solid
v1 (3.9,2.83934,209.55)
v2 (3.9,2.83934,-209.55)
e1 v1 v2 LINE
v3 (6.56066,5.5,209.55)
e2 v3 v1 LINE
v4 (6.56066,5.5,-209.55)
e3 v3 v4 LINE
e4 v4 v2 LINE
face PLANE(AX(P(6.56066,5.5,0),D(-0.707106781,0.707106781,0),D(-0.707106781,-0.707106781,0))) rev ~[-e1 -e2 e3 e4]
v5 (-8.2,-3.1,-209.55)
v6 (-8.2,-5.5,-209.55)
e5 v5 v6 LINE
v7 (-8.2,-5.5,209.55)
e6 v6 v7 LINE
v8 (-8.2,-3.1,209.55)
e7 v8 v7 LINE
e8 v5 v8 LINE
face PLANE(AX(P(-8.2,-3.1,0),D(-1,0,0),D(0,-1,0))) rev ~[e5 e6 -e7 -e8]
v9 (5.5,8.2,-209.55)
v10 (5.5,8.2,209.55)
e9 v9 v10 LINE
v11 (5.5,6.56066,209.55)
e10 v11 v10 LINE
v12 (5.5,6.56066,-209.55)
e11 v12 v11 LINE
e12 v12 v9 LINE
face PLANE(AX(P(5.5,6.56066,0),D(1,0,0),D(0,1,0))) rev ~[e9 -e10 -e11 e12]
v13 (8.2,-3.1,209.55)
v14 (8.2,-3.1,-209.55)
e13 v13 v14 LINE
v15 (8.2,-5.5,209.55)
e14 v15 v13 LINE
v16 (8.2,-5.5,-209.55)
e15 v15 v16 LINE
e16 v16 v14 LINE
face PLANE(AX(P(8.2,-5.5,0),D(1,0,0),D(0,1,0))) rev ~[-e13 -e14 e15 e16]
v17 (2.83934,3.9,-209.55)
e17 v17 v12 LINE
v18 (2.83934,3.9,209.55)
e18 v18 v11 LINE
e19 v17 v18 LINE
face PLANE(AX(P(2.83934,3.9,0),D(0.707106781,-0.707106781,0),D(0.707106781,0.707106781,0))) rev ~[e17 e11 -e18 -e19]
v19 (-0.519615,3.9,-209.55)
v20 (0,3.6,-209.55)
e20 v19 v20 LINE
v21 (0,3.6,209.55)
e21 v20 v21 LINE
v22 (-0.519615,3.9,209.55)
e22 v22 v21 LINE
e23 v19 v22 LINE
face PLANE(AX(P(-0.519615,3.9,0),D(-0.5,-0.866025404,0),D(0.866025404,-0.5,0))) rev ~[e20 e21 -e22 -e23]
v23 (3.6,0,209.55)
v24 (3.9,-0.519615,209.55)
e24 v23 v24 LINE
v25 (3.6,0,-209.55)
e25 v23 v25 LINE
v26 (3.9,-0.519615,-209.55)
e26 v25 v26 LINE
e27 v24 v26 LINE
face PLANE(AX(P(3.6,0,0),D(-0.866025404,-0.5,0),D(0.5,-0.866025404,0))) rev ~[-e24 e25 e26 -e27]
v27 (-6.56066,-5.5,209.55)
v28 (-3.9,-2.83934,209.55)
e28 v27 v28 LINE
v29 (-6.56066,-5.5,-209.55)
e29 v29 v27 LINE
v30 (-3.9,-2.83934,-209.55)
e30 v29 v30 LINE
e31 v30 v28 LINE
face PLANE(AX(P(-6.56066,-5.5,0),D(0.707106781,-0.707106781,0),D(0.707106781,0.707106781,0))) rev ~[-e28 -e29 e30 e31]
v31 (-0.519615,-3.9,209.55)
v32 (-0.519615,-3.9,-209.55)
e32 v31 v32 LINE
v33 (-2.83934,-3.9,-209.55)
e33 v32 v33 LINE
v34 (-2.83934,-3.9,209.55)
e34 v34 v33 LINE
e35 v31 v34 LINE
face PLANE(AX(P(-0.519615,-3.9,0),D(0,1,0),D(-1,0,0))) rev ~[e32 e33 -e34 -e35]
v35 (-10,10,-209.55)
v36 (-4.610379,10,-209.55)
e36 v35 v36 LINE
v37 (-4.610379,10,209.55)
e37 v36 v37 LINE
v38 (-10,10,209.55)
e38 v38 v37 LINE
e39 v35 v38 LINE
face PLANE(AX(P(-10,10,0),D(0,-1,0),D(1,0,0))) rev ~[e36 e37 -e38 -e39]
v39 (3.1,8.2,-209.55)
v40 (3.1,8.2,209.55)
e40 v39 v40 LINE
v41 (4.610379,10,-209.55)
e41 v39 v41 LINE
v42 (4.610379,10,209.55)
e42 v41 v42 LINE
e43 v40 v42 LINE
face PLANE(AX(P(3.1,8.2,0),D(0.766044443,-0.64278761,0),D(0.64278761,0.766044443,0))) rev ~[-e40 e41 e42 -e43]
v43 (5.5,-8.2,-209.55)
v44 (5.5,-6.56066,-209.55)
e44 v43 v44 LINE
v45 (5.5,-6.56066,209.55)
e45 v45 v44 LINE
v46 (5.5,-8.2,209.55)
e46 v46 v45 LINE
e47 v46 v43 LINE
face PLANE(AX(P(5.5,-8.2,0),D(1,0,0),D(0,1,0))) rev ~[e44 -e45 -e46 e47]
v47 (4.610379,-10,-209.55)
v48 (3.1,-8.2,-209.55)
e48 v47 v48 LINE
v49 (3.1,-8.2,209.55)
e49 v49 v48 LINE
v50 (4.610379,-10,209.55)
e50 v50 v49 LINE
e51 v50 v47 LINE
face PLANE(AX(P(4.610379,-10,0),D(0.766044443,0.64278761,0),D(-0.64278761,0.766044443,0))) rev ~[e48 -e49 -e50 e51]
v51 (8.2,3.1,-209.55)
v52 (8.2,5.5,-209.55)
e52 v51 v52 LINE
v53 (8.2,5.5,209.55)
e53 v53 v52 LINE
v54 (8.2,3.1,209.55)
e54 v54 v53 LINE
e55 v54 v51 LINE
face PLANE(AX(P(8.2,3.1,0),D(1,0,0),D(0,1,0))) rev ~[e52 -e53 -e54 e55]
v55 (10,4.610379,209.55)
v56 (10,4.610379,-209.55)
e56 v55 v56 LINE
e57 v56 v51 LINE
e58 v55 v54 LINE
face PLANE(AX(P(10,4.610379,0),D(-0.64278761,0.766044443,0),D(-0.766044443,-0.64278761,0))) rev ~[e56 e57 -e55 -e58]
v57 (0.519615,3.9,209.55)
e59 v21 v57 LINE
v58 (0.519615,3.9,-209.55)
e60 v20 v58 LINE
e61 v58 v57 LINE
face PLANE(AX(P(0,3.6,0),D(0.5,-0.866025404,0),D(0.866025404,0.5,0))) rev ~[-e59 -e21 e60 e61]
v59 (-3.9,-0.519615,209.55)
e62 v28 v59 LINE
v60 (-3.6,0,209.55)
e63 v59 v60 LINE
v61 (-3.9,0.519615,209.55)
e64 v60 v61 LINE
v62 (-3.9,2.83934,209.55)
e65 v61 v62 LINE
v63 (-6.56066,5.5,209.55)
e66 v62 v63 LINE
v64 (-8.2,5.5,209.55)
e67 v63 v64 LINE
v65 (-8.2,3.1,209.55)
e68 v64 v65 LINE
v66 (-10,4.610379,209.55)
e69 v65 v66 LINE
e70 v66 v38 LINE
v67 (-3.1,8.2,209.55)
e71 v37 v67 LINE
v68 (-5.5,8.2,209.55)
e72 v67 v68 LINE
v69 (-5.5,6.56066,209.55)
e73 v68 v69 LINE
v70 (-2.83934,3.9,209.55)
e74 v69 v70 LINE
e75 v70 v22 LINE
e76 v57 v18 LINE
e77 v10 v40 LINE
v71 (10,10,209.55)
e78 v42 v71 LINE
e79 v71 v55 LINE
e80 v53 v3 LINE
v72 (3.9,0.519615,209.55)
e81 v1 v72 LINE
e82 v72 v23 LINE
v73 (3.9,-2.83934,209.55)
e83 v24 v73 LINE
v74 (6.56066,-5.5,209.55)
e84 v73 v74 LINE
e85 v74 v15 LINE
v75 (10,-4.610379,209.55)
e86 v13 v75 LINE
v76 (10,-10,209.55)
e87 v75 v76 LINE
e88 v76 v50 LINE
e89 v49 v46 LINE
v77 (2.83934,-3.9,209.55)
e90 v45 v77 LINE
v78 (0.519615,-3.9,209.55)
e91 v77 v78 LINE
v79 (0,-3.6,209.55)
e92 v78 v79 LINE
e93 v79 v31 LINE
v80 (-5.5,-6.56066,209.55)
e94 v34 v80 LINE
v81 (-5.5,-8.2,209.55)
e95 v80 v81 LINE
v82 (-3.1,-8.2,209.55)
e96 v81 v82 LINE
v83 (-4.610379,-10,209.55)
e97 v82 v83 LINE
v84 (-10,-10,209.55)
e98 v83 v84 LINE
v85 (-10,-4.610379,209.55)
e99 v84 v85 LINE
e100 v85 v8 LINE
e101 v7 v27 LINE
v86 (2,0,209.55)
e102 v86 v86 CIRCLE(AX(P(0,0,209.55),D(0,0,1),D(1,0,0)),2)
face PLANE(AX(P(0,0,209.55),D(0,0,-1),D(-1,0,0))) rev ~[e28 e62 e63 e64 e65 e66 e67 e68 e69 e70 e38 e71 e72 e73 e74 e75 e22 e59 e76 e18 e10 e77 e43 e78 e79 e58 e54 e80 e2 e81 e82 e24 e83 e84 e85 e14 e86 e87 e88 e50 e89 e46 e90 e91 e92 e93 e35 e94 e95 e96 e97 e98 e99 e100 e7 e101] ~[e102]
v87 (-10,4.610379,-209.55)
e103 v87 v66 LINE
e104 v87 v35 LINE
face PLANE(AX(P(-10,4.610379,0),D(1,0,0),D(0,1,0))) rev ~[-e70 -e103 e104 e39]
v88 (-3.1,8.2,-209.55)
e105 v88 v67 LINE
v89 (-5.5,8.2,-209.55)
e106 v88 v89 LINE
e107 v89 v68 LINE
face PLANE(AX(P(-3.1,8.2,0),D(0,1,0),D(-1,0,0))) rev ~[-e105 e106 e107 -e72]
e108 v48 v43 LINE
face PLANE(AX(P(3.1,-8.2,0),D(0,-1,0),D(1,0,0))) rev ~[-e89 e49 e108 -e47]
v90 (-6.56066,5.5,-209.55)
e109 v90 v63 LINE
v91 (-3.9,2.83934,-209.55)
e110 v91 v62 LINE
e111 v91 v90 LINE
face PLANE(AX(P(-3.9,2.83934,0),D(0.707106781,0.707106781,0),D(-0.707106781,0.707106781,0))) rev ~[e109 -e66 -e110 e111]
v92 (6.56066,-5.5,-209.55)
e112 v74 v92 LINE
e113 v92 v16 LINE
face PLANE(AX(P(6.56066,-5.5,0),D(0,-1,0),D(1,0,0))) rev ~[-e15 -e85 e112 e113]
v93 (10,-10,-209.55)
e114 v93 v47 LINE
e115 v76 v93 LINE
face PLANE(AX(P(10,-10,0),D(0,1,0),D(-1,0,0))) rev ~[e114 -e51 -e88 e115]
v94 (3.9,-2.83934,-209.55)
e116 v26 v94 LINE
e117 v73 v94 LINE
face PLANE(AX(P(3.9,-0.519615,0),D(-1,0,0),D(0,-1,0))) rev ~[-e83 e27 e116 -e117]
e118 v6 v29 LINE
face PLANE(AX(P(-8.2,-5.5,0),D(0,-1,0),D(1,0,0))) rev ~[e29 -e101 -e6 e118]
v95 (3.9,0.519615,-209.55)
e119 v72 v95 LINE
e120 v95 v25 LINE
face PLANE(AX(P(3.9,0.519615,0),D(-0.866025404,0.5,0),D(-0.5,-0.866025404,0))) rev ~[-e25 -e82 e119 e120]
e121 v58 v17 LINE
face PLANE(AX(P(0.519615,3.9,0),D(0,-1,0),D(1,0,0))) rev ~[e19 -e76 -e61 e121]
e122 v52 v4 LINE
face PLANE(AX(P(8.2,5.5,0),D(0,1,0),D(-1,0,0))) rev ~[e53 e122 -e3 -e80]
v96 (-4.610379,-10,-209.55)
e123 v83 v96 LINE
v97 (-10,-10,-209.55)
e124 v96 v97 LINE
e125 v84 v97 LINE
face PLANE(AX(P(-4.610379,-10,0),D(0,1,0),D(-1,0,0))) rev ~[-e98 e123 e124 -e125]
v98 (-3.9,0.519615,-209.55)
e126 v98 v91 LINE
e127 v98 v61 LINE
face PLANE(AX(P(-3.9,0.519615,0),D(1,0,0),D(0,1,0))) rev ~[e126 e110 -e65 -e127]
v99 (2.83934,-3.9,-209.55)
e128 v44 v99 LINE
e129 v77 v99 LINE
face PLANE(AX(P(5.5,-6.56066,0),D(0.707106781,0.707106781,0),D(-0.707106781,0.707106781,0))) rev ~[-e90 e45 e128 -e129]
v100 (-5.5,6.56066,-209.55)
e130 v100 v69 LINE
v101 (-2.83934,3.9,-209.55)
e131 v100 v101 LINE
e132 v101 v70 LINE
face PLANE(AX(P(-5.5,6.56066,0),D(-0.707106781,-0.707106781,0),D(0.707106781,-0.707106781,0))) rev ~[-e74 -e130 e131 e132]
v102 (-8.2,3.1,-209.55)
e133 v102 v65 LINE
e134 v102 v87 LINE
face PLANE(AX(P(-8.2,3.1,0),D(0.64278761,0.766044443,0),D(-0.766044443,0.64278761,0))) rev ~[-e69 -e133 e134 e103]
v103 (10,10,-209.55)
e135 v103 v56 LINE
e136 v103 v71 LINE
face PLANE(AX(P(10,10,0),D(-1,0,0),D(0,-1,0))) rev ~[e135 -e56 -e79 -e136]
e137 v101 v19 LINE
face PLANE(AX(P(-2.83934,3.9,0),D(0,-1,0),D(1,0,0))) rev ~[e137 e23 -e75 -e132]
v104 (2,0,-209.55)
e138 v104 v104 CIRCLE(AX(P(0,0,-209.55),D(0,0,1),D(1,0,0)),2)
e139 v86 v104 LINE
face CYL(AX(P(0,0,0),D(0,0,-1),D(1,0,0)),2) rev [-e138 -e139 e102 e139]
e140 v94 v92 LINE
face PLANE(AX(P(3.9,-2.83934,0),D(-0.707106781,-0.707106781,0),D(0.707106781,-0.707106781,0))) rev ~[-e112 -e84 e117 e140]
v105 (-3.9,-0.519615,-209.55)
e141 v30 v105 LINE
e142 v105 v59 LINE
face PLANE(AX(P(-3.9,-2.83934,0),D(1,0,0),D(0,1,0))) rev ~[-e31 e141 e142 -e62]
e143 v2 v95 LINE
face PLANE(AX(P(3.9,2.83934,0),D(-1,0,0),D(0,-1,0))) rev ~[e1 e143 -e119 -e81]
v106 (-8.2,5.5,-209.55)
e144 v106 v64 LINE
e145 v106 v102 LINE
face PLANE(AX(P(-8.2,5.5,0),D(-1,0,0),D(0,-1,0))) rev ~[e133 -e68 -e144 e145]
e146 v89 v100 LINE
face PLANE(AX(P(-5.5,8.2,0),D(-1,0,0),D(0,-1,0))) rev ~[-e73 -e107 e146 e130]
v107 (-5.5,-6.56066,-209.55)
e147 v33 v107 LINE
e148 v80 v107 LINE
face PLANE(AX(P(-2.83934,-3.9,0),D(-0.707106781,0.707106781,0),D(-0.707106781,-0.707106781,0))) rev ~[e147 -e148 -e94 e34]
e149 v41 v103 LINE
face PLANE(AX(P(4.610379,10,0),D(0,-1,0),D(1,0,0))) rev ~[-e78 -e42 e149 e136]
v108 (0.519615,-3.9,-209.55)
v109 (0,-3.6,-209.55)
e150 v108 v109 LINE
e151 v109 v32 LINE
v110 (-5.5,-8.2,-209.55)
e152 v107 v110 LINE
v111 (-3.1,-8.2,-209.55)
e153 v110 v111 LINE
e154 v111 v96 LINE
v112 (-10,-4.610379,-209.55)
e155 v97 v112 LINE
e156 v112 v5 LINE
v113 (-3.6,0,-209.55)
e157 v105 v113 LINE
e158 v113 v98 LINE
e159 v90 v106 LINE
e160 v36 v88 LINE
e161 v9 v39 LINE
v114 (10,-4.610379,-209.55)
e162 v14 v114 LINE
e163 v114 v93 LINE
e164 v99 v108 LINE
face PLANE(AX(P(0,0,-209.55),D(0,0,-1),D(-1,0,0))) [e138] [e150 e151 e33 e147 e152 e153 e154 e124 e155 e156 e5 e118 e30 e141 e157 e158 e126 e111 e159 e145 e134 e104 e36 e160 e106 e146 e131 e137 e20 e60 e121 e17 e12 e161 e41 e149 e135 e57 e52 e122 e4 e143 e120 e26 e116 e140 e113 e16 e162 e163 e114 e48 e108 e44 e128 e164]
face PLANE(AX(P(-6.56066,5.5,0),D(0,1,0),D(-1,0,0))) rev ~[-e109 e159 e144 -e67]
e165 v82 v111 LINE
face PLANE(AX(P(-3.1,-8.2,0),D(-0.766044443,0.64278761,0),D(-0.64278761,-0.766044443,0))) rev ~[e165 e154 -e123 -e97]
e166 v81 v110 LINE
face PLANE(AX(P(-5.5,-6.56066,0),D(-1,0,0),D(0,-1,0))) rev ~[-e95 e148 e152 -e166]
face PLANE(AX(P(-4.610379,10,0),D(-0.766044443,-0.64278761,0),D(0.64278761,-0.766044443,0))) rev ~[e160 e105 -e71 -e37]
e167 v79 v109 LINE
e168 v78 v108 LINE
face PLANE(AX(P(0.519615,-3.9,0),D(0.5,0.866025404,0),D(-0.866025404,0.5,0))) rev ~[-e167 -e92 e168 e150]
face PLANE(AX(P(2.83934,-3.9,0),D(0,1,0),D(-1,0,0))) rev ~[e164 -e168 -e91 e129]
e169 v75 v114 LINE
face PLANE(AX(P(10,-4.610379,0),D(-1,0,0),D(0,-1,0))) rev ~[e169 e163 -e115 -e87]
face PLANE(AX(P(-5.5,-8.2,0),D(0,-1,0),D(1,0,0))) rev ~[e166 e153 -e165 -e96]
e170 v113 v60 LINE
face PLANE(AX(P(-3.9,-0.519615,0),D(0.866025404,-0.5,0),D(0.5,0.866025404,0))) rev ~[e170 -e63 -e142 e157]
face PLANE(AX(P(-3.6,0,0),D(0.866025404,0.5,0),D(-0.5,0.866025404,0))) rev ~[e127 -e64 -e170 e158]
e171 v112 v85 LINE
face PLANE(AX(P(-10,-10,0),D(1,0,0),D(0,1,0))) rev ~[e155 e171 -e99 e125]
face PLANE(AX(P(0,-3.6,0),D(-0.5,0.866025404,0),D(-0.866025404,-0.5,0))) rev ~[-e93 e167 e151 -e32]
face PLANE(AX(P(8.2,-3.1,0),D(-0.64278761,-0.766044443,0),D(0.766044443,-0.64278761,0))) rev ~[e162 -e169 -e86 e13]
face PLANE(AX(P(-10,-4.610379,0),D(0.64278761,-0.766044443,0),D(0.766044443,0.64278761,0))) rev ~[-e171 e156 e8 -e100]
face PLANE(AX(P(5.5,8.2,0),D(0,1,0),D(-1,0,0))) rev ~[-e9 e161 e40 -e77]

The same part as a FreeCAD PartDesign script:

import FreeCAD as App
import Part
import Sketcher
Q = App.Units.Quantity


def add_polygon(sketch, points):
    """Adds a closed chain of lines whose ends are joined by coincident constraints."""
    first, n = sketch.GeometryCount, len(points)
    for a, b in zip(points, points[1:] + points[:1]):
        sketch.addGeometry(Part.LineSegment(App.Vector(*a, 0), App.Vector(*b, 0)), False)
    for i in range(n):
        sketch.addConstraint(Sketcher.Constraint("Coincident", first + i, 2, first + (i + 1) % n, 1))

doc = App.newDocument("Part")
body = doc.addObject("PartDesign::Body", "Body")

sketch1 = body.newObject("Sketcher::SketchObject", "Sketch")
sketch1.AttachmentSupport = (doc.getObject("XY_Plane"), [""])
sketch1.MapMode = "FlatFace"
add_polygon(sketch1, [(10, 4.610379), (10, 10), (4.610379, 10), (3.1, 8.2), (5.5, 8.2), (5.5, 6.56066), (2.83934, 3.9), (0.519615, 3.9), (0, 3.6), (-0.519615, 3.9), (-2.83934, 3.9), (-5.5, 6.56066), (-5.5, 8.2), (-3.1, 8.2), (-4.610379, 10), (-10, 10), (-10, 4.610379), (-8.2, 3.1), (-8.2, 5.5), (-6.56066, 5.5), (-3.9, 2.83934), (-3.9, 0.519615), (-3.6, 0), (-3.9, -0.519615), (-3.9, -2.83934), (-6.56066, -5.5), (-8.2, -5.5), (-8.2, -3.1), (-10, -4.610379), (-10, -10), (-4.610379, -10), (-3.1, -8.2), (-5.5, -8.2), (-5.5, -6.56066), (-2.83934, -3.9), (-0.519615, -3.9), (0, -3.6), (0.519615, -3.9), (2.83934, -3.9), (5.5, -6.56066), (5.5, -8.2), (3.1, -8.2), (4.610379, -10), (10, -10), (10, -4.610379), (8.2, -3.1), (8.2, -5.5), (6.56066, -5.5), (3.9, -2.83934), (3.9, -0.519615), (3.6, 0), (3.9, 0.519615), (3.9, 2.83934), (6.56066, 5.5), (8.2, 5.5), (8.2, 3.1)])
sketch1.addGeometry(Part.Circle(App.Vector(0, 0, 0), App.Vector(0, 0, 1), 2), False)
sketch1.addConstraint([
    Sketcher.Constraint("Vertical", 0),
    Sketcher.Constraint("Horizontal", 1),
    Sketcher.Constraint("Horizontal", 3),
    Sketcher.Constraint("Vertical", 4),
    Sketcher.Constraint("Horizontal", 6),
    Sketcher.Constraint("Horizontal", 9),
    Sketcher.Constraint("Vertical", 11),
    Sketcher.Constraint("Horizontal", 12),
    Sketcher.Constraint("Horizontal", 14),
    Sketcher.Constraint("Vertical", 15),
    Sketcher.Constraint("Vertical", 17),
    Sketcher.Constraint("Horizontal", 18),
    Sketcher.Constraint("Vertical", 20),
    Sketcher.Constraint("Vertical", 23),
    Sketcher.Constraint("Horizontal", 25),
    Sketcher.Constraint("Vertical", 26),
    Sketcher.Constraint("Vertical", 28),
    Sketcher.Constraint("Horizontal", 29),
    Sketcher.Constraint("Horizontal", 31),
    Sketcher.Constraint("Vertical", 32),
    Sketcher.Constraint("Horizontal", 34),
    Sketcher.Constraint("Horizontal", 37),
    Sketcher.Constraint("Vertical", 39),
    Sketcher.Constraint("Horizontal", 40),
    Sketcher.Constraint("Horizontal", 42),
    Sketcher.Constraint("Vertical", 43),
    Sketcher.Constraint("Vertical", 45),
    Sketcher.Constraint("Horizontal", 46),
    Sketcher.Constraint("Vertical", 48),
    Sketcher.Constraint("Vertical", 51),
    Sketcher.Constraint("Horizontal", 53),
    Sketcher.Constraint("Vertical", 54),
    Sketcher.Constraint("Coincident", 56, 3, -1, 1),
    Sketcher.Constraint("Symmetric", 0, 2, 28, 2, -1, 1),
    Sketcher.Constraint("Symmetric", 2, 2, 30, 2, -1, 1),
    Sketcher.Constraint("Symmetric", 4, 2, 32, 2, -1, 1),
    Sketcher.Constraint("Symmetric", 5, 2, 33, 2, -1, 1),
    Sketcher.Constraint("Symmetric", 7, 2, 35, 2, -1, 1),
    Sketcher.Constraint("Symmetric", 8, 2, 36, 2, -1, 1),
    Sketcher.Constraint("Symmetric", 10, 2, 38, 2, -1, 1),
    Sketcher.Constraint("Symmetric", 12, 2, 40, 2, -1, 1),
    Sketcher.Constraint("Symmetric", 13, 2, 41, 2, -1, 1),
    Sketcher.Constraint("Symmetric", 15, 2, 43, 2, -1, 1),
    Sketcher.Constraint("Symmetric", 16, 2, 44, 2, -1, 1),
    Sketcher.Constraint("Symmetric", 18, 2, 46, 2, -1, 1),
    Sketcher.Constraint("Symmetric", 19, 2, 47, 2, -1, 1),
    Sketcher.Constraint("Symmetric", 21, 2, 49, 2, -1, 1),
    Sketcher.Constraint("Symmetric", 22, 2, 50, 2, -1, 1),
    Sketcher.Constraint("Symmetric", 24, 2, 52, 2, -1, 1),
    Sketcher.Constraint("Symmetric", 26, 2, 54, 2, -1, 1),
    Sketcher.Constraint("Symmetric", 6, 2, 8, 2, -2),
    Sketcher.Constraint("Symmetric", 4, 2, 10, 2, -2),
    Sketcher.Constraint("Symmetric", 2, 2, 12, 2, -2),
    Sketcher.Constraint("Symmetric", 1, 2, 13, 2, -2),
    Sketcher.Constraint("Symmetric", 27, 2, 43, 2, -2),
    Sketcher.Constraint("Symmetric", 26, 2, 44, 2, -2),
    Sketcher.Constraint("Symmetric", 24, 2, 46, 2, -2),
    Sketcher.Constraint("Symmetric", 23, 2, 47, 2, -2),
    Sketcher.Constraint("PointOnObject", 7, 2, -2),
    Sketcher.Constraint("PointOnObject", 21, 2, -1),
    Sketcher.Constraint("Perpendicular", 5, 10),
    Sketcher.Constraint("Perpendicular", 2, 16),
    Sketcher.Constraint("Parallel", 10, 19),
    Sketcher.Constraint("Perpendicular", 7, 21),
    Sketcher.Constraint("Perpendicular", 8, 22),
    Sketcher.Constraint("Perpendicular", 19, 24),
    Sketcher.Constraint("Perpendicular", 16, 30),
    Sketcher.Constraint("Perpendicular", 21, 35),
    Sketcher.Constraint("Perpendicular", 33, 38),
    Sketcher.Constraint("Perpendicular", 35, 49),
    Sketcher.Constraint("Perpendicular", 47, 52),
    Sketcher.Constraint("Perpendicular", 41, 55),
    Sketcher.Constraint("Equal", 42, 0),
    Sketcher.Constraint("Equal", 53, 4),
    Sketcher.Constraint("Equal", 40, 17),
    Sketcher.Constraint("Equal", 37, 20),
    Sketcher.Constraint("Equal", 13, 16),
    Sketcher.Constraint("Equal", 10, 19),
    Sketcher.Constraint("Equal", 8, 21),
    Sketcher.Constraint("Diameter", 56, 4.0),
    Sketcher.Constraint("Angle", 2, Q("-130 deg")),
    Sketcher.Constraint("Angle", 7, Q("-150 deg")),
    Sketcher.Constraint("DistanceX", 3, 1, 3, 2, 2.4),
    Sketcher.Constraint("DistanceX", -1, 1, 0, 2, 10.0),
    Sketcher.Constraint("Distance", 7, 0.6),
    Sketcher.Constraint("DistanceX", -1, 1, 2, 2, 3.1),
    Sketcher.Constraint("DistanceY", -1, 1, 2, 2, 8.2),
    Sketcher.Constraint("DistanceY", -1, 1, 5, 2, 3.9),
    Sketcher.Constraint("DistanceX", 18, 1, 18, 2, 1.63934),
])
pad1 = body.newObject("PartDesign::Pad", "Pad")
pad1.Profile = sketch1
pad1.Length = 419.1
pad1.Midplane = True

doc.recompute()
